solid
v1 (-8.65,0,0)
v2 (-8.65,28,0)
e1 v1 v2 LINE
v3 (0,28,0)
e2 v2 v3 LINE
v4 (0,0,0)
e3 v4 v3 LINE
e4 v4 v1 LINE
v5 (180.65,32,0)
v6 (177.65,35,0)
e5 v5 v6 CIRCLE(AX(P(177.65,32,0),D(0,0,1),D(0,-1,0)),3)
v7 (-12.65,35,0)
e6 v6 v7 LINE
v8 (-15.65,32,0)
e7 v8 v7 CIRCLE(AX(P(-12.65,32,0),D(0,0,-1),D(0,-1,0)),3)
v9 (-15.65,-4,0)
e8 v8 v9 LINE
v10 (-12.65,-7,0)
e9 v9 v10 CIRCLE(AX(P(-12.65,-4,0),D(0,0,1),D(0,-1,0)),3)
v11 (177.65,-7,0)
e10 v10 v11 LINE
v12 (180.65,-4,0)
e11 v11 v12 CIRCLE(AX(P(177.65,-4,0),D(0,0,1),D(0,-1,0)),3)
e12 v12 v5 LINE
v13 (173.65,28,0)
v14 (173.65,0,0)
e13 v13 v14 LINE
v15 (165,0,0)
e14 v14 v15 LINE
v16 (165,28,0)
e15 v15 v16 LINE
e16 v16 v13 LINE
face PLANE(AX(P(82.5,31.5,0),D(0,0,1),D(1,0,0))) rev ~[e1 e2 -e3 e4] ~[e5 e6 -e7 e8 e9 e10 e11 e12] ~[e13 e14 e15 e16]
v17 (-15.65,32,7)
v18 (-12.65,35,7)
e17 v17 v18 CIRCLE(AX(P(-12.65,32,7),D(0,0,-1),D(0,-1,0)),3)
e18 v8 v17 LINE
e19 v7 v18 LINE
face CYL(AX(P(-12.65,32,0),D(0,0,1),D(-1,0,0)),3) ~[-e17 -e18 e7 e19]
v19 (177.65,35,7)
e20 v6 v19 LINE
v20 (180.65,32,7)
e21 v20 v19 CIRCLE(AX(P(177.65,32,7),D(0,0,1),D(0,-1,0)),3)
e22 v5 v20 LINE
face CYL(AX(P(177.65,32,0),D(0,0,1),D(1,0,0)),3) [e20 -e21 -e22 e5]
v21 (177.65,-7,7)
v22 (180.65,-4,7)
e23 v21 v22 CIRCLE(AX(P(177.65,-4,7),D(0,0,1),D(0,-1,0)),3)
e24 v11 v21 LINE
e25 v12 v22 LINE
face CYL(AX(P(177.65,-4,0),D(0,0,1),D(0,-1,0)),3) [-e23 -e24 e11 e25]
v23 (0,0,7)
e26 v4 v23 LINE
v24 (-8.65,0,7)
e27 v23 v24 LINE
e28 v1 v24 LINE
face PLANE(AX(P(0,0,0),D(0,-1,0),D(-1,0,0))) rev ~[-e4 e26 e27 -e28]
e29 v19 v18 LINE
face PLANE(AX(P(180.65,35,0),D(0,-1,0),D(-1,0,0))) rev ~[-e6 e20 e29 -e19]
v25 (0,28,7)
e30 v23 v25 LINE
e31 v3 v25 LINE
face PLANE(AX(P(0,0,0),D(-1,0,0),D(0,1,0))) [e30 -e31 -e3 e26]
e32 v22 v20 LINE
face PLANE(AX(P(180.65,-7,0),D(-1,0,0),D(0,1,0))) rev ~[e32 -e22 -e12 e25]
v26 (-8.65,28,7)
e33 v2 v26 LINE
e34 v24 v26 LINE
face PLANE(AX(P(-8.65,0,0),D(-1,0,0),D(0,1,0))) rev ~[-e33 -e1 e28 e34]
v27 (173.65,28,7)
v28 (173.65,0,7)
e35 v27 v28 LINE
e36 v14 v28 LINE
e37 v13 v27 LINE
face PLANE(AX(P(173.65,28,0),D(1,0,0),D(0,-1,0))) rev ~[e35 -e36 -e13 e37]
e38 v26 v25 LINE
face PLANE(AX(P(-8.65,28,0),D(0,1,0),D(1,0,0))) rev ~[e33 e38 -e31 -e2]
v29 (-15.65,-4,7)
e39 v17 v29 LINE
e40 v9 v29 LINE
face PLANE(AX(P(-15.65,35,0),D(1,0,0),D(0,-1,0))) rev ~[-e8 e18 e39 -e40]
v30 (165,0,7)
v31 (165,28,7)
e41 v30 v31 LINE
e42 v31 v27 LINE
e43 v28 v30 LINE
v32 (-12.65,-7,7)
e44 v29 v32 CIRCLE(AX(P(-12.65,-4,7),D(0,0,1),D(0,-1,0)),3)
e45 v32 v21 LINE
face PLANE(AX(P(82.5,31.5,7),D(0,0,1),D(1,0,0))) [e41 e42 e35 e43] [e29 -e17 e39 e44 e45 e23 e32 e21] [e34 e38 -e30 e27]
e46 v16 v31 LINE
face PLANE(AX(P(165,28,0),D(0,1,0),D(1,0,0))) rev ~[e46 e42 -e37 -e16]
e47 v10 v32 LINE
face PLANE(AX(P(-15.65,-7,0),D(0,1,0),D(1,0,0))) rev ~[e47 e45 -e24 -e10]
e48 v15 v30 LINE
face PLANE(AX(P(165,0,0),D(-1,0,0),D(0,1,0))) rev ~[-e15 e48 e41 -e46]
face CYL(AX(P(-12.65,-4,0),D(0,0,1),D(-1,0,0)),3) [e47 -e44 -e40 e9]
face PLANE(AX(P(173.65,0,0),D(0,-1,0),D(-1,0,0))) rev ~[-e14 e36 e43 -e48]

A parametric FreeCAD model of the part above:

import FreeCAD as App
import Part
import Sketcher


def edges_at(feature, points):
    """Names of the edges that pass closest to the given points."""
    edges = feature.Shape.Edges
    near = lambda p: min(range(len(edges)), key=lambda i: edges[i].distToShape(Part.Vertex(*p))[0])
    return sorted({f"Edge{near(p) + 1}" for p in points})

doc = App.newDocument("Part")
body = doc.addObject("PartDesign::Body", "Body")

# Sketch on XY plane
sketch1 = doc.addObject("Sketcher::SketchObject", "Sketch")
body.addObject(sketch1)
sketch1.AttachmentSupport = (doc.XY_Plane, [""])
sketch1.MapMode = "FlatFace"
sketch1.addGeometry(Part.LineSegment(App.Vector(-16, 35, 0), App.Vector(-16, -7, 0)), False)
sketch1.addGeometry(Part.LineSegment(App.Vector(-16, -7, 0), App.Vector(181, -7, 0)), False)
sketch1.addGeometry(Part.LineSegment(App.Vector(181, -7, 0), App.Vector(181, 35, 0)), False)
sketch1.addGeometry(Part.LineSegment(App.Vector(181, 35, 0), App.Vector(-16, 35, 0)), False)
sketch1.addGeometry(Part.LineSegment(App.Vector(-9, 28, 0), App.Vector(0, 28, 0)), False)
sketch1.addGeometry(Part.LineSegment(App.Vector(0, 28, 0), App.Vector(0, 0, 0)), False)
sketch1.addGeometry(Part.LineSegment(App.Vector(0, 0, 0), App.Vector(-9, 0, 0)), False)
sketch1.addGeometry(Part.LineSegment(App.Vector(-9, 0, 0), App.Vector(-9, 28, 0)), False)
sketch1.addGeometry(Part.LineSegment(App.Vector(165, 28, 0), App.Vector(174, 28, 0)), False)
sketch1.addGeometry(Part.LineSegment(App.Vector(174, 28, 0), App.Vector(174, 0, 0)), False)
sketch1.addGeometry(Part.LineSegment(App.Vector(174, 0, 0), App.Vector(165, 0, 0)), False)
sketch1.addGeometry(Part.LineSegment(App.Vector(165, 0, 0), App.Vector(165, 28, 0)), False)
sketch1.addConstraint(Sketcher.Constraint("Coincident", 0, 2, 1, 1))
sketch1.addConstraint(Sketcher.Constraint("Coincident", 1, 2, 2, 1))
sketch1.addConstraint(Sketcher.Constraint("Coincident", 2, 2, 3, 1))
sketch1.addConstraint(Sketcher.Constraint("Coincident", 3, 2, 0, 1))
sketch1.addConstraint(Sketcher.Constraint("Coincident", 4, 2, 5, 1))
sketch1.addConstraint(Sketcher.Constraint("Coincident", 5, 2, 6, 1))
sketch1.addConstraint(Sketcher.Constraint("Coincident", 6, 2, 7, 1))
sketch1.addConstraint(Sketcher.Constraint("Coincident", 7, 2, 4, 1))
sketch1.addConstraint(Sketcher.Constraint("Coincident", 8, 2, 9, 1))
sketch1.addConstraint(Sketcher.Constraint("Coincident", 9, 2, 10, 1))
sketch1.addConstraint(Sketcher.Constraint("Coincident", 10, 2, 11, 1))
sketch1.addConstraint(Sketcher.Constraint("Coincident", 11, 2, 8, 1))
sketch1.addConstraint(Sketcher.Constraint("Vertical", 0))
sketch1.addConstraint(Sketcher.Constraint("Horizontal", 1))
sketch1.addConstraint(Sketcher.Constraint("Vertical", 2))
sketch1.addConstraint(Sketcher.Constraint("Horizontal", 3))
sketch1.addConstraint(Sketcher.Constraint("Horizontal", 4))
sketch1.addConstraint(Sketcher.Constraint("Vertical", 5))
sketch1.addConstraint(Sketcher.Constraint("Horizontal", 6))
sketch1.addConstraint(Sketcher.Constraint("Vertical", 7))
sketch1.addConstraint(Sketcher.Constraint("Horizontal", 8))
sketch1.addConstraint(Sketcher.Constraint("Vertical", 9))
sketch1.addConstraint(Sketcher.Constraint("Horizontal", 10))
sketch1.addConstraint(Sketcher.Constraint("Vertical", 11))
sketch1.addConstraint(Sketcher.Constraint("Coincident", 5, 2, -1, 1))
sketch1.addConstraint(Sketcher.Constraint("PointOnObject", 9, 2, -1))
sketch1.addConstraint(Sketcher.Constraint("Horizontal", 7, 2, 8, 2))
sketch1.addConstraint(Sketcher.Constraint("Equal", 6, 8))
sketch1.addConstraint(Sketcher.Constraint("DistanceY", 0, 2, 0, 1, 42.0))
sketch1.addConstraint(Sketcher.Constraint("DistanceY", 5, 2, 5, 1, 28.0))
sketch1.addConstraint(Sketcher.Constraint("DistanceX", 1, 1, 1, 2, 196.3))
sketch1.addConstraint(Sketcher.Constraint("DistanceY", 0, 2, -1, 1, 7.0))
sketch1.addConstraint(Sketcher.Constraint("DistanceX", -1, 1, 10, 2, 165.0))
sketch1.addConstraint(Sketcher.Constraint("DistanceX", 0, 2, 6, 2, 7.0))
sketch1.addConstraint(Sketcher.Constraint("DistanceX", 8, 2, 2, 2, 7.0))
pad1 = doc.addObject("PartDesign::Pad", "Pad")
body.addObject(pad1)
pad1.Profile = sketch1
pad1.Length = 7
doc.recompute()

fillet = doc.addObject("PartDesign::Fillet", "Fillet")
body.addObject(fillet)
fillet.Base = (pad1, edges_at(pad1, [
    (180.65, -7, 3.5),
    (180.65, 35, 3.5),
    (-15.65, -7, 3.5),
    (-15.65, 35, 3.5),
]))
fillet.Radius = 3

doc.recompute()
